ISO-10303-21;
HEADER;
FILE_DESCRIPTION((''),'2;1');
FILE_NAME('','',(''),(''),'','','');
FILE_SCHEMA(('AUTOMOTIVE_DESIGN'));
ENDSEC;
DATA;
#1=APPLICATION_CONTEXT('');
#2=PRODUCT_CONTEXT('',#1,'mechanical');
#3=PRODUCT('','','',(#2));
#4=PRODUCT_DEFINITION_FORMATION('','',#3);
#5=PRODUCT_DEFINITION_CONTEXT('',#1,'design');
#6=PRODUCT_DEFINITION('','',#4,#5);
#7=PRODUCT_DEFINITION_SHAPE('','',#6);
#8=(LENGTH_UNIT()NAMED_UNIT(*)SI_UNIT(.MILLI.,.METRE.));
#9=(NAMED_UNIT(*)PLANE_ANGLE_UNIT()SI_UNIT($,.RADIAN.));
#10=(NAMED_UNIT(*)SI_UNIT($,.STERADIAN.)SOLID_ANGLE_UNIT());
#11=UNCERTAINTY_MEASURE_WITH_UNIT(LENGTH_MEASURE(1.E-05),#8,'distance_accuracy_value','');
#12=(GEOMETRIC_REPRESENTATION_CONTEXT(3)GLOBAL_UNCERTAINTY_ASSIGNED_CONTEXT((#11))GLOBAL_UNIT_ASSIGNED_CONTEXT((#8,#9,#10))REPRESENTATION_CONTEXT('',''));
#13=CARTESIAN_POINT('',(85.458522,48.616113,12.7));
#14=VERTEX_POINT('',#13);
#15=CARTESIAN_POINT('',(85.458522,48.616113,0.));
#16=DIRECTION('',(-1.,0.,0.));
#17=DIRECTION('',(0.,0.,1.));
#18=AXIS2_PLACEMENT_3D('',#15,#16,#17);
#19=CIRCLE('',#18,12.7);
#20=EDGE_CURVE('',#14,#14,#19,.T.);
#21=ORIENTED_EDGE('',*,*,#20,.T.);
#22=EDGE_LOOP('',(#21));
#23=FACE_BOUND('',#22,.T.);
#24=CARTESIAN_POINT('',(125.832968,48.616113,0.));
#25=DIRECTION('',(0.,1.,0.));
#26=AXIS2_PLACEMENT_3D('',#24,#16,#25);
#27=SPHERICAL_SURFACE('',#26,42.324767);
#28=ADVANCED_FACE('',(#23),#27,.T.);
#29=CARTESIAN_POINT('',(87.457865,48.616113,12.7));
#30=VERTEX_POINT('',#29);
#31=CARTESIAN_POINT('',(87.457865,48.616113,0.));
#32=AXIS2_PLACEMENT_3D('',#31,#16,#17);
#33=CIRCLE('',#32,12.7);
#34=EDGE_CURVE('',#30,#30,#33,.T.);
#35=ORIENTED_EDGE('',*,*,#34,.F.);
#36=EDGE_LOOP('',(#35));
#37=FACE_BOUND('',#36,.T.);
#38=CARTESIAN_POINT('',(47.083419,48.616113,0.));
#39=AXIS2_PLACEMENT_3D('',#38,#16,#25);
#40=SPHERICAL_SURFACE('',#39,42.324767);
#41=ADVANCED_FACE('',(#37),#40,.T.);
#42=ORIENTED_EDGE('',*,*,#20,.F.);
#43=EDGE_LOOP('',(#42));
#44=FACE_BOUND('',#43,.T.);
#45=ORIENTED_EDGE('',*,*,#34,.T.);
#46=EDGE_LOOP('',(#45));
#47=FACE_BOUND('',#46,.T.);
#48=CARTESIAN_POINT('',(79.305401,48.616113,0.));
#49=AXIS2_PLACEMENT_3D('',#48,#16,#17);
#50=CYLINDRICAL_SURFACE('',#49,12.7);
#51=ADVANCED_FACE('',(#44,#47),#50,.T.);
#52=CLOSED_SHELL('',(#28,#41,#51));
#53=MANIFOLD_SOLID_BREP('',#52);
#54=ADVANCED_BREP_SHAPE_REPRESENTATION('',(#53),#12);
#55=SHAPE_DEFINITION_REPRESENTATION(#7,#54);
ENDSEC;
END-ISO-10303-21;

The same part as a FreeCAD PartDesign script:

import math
import FreeCAD as App
import Part
import Sketcher

doc = App.newDocument("Part")
body = doc.addObject("PartDesign::Body", "Body")

# Sketch on XY plane
sketch1 = body.newObject("Sketcher::SketchObject", "Sketch")
sketch1.AttachmentSupport = (doc.getObject("XY_Plane"), [""])
sketch1.MapMode = "FlatFace"
sketch1.addGeometry([
    Part.LineSegment(App.Vector(87.5, 61.3, 0), App.Vector(85.5, 61.3, 0)),
    Part.ArcOfCircle(Part.Circle(App.Vector(125.8, 48.6, 0), App.Vector(0, 0, 1), 42.3), math.radians(162.54), math.radians(180)),
    Part.LineSegment(App.Vector(83.5, 48.6, 0), App.Vector(89.4, 48.6, 0)),
    Part.ArcOfCircle(Part.Circle(App.Vector(47.1, 48.6, 0), App.Vector(0, 0, 1), 42.3), math.radians(0), math.radians(17.46)),
], False)
sketch1.addGeometry(Part.LineSegment(App.Vector(47.1, 48.6, 0), App.Vector(125.8, 48.6, 0)), True)  # axis
sketch1.addConstraint([
    Sketcher.Constraint("Coincident", 0, 2, 1, 1),
    Sketcher.Constraint("Coincident", 1, 2, 2, 1),
    Sketcher.Constraint("Coincident", 2, 2, 3, 1),
    Sketcher.Constraint("Coincident", 3, 2, 0, 1),
    Sketcher.Constraint("Horizontal", 0),
    Sketcher.Constraint("Horizontal", 2),
    Sketcher.Constraint("Horizontal", 4),
    Sketcher.Constraint("Coincident", 4, 1, 3, 3),
    Sketcher.Constraint("Coincident", 4, 2, 1, 3),
    Sketcher.Constraint("Equal", 1, 3),
    Sketcher.Constraint("Horizontal", 3, 3, 1, 2),
    Sketcher.Constraint("DistanceY", 3, 3, 0, 2, 12.7),
    Sketcher.Constraint("Radius", 1, 42.324767),
    Sketcher.Constraint("DistanceX", 4, 1, 4, 2, 78.749549),
    Sketcher.Constraint("DistanceX", -1, 1, 1, 2, 83.508201),
    Sketcher.Constraint("DistanceY", -1, 1, 1, 3, 48.616113),
])
revolution = body.newObject("PartDesign::Revolution", "Revolution")
revolution.Profile = sketch1
revolution.ReferenceAxis = (sketch1, ["Axis0"])
revolution.Angle = 360

doc.recompute()
